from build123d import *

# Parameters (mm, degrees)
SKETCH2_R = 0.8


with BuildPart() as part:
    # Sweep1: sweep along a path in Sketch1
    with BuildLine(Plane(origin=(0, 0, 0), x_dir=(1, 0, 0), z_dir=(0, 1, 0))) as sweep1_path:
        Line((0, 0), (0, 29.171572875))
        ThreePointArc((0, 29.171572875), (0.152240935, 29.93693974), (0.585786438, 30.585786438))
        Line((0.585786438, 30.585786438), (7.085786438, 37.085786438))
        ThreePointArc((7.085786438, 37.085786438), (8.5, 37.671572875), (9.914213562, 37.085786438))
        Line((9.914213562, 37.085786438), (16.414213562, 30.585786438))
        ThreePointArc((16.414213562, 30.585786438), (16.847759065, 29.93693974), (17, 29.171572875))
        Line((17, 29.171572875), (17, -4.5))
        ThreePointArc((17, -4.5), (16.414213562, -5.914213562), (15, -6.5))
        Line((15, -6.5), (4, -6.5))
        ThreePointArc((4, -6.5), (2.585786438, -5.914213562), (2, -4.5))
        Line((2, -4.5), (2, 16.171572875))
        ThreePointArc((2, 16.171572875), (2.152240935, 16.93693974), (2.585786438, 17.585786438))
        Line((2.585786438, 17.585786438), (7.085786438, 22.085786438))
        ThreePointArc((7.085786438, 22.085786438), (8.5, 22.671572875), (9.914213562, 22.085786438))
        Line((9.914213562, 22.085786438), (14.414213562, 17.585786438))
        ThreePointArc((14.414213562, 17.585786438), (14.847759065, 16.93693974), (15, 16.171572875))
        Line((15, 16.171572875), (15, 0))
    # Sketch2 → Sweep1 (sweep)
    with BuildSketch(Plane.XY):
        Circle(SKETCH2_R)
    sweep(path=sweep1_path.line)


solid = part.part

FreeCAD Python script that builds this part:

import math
import FreeCAD as App
import Part
import Sketcher
from FreeCAD import Vector

doc = App.newDocument("Part")
body = doc.addObject("PartDesign::Body", "Body")

# Sketch on XY plane
sketch1 = body.newObject("Sketcher::SketchObject", "Sketch")
sketch1.AttachmentSupport = (doc.getObject("XY_Plane"), [""])
sketch1.MapMode = "FlatFace"
sketch1.addGeometry(Part.Circle(Vector(0, 0, 0), Vector(0, 0, 1), 0.8), False)
sketch1.addConstraint([
    Sketcher.Constraint("Coincident", 0, 3, -1, 1),
    Sketcher.Constraint("Diameter", 0, 1.6),
])

# Sketch on XZ plane
sketch2 = body.newObject("Sketcher::SketchObject", "Sketch001")
sketch2.AttachmentSupport = (doc.getObject("XZ_Plane"), [""])
sketch2.MapMode = "FlatFace"
sketch2.addGeometry([
    Part.LineSegment(Vector(0, 0, 0), Vector(0, -29.2, 0)),  # 0
    Part.ArcOfCircle(Part.Circle(Vector(2, -29.2, 0), Vector(0, 0, 1), 2), math.radians(180), math.radians(225)),  # 1
    Part.LineSegment(Vector(0.6, -30.6, 0), Vector(7.1, -37.1, 0)),  # 2
    Part.ArcOfCircle(Part.Circle(Vector(8.5, -35.7, 0), Vector(0, 0, 1), 2), math.radians(-135), math.radians(-45)),  # 3
    Part.LineSegment(Vector(9.9, -37.1, 0), Vector(16.4, -30.6, 0)),  # 4
    Part.ArcOfCircle(Part.Circle(Vector(15, -29.2, 0), Vector(0, 0, 1), 2), math.radians(-45), math.radians(0)),  # 5
    Part.LineSegment(Vector(17, -29.2, 0), Vector(17, 4.5, 0)),  # 6
    Part.ArcOfCircle(Part.Circle(Vector(15, 4.5, 0), Vector(0, 0, 1), 2), math.radians(0), math.radians(90)),  # 7
    Part.LineSegment(Vector(15, 6.5, 0), Vector(4, 6.5, 0)),  # 8
    Part.ArcOfCircle(Part.Circle(Vector(4, 4.5, 0), Vector(0, 0, 1), 2), math.radians(90), math.radians(180)),  # 9
    Part.LineSegment(Vector(2, 4.5, 0), Vector(2, -16.2, 0)),  # 10
    Part.ArcOfCircle(Part.Circle(Vector(4, -16.2, 0), Vector(0, 0, 1), 2), math.radians(180), math.radians(225)),  # 11
    Part.LineSegment(Vector(2.6, -17.6, 0), Vector(7.1, -22.1, 0)),  # 12
    Part.ArcOfCircle(Part.Circle(Vector(8.5, -20.7, 0), Vector(0, 0, 1), 2), math.radians(-135), math.radians(-45)),  # 13
    Part.LineSegment(Vector(9.9, -22.1, 0), Vector(14.4, -17.6, 0)),  # 14
    Part.ArcOfCircle(Part.Circle(Vector(13, -16.2, 0), Vector(0, 0, 1), 2), math.radians(-45), math.radians(0)),  # 15
    Part.LineSegment(Vector(15, -16.2, 0), Vector(15, 0, 0)),  # 16
], False)
sketch2.addConstraint([
    Sketcher.Constraint("Tangent", 0, 2, 1, 1),
    Sketcher.Constraint("Tangent", 1, 2, 2, 1),
    Sketcher.Constraint("Tangent", 2, 2, 3, 1),
    Sketcher.Constraint("Tangent", 3, 2, 4, 1),
    Sketcher.Constraint("Tangent", 4, 2, 5, 1),
    Sketcher.Constraint("Tangent", 5, 2, 6, 1),
    Sketcher.Constraint("Tangent", 6, 2, 7, 1),
    Sketcher.Constraint("Tangent", 7, 2, 8, 1),
    Sketcher.Constraint("Tangent", 8, 2, 9, 1),
    Sketcher.Constraint("Tangent", 9, 2, 10, 1),
    Sketcher.Constraint("Tangent", 10, 2, 11, 1),
    Sketcher.Constraint("Tangent", 11, 2, 12, 1),
    Sketcher.Constraint("Tangent", 12, 2, 13, 1),
    Sketcher.Constraint("Tangent", 13, 2, 14, 1),
    Sketcher.Constraint("Tangent", 14, 2, 15, 1),
    Sketcher.Constraint("Tangent", 15, 2, 16, 1),
    Sketcher.Constraint("Vertical", 0),
    Sketcher.Constraint("Vertical", 6),
    Sketcher.Constraint("Horizontal", 8),
    Sketcher.Constraint("Vertical", 10),
    Sketcher.Constraint("Vertical", 16),
    Sketcher.Constraint("Coincident", 0, 1, -1, 1),
    Sketcher.Constraint("Equal", 1, 3),
    Sketcher.Constraint("Equal", 3, 5),
    Sketcher.Constraint("Equal", 5, 7),
    Sketcher.Constraint("Equal", 7, 9),
    Sketcher.Constraint("Equal", 9, 11),
    Sketcher.Constraint("Equal", 11, 13),
    Sketcher.Constraint("Equal", 13, 15),
    Sketcher.Constraint("PointOnObject", 16, 2, -1),
    Sketcher.Constraint("Perpendicular", 2, 4),
    Sketcher.Constraint("Perpendicular", 4, 12),
    Sketcher.Constraint("Perpendicular", 12, 14),
    Sketcher.Constraint("Horizontal", 1, 3, 5, 3),
    Sketcher.Constraint("Horizontal", 11, 3, 15, 3),
    Sketcher.Constraint("Horizontal", 2, 2, 3, 2),
    Sketcher.Constraint("Vertical", 3, 3, 13, 3),
    Sketcher.Constraint("Vertical", 1, 3, 9, 2),
    Sketcher.Constraint("Radius", 1, 2.0),
    Sketcher.Constraint("DistanceX", 8, 2, 8, 1, 11.0),
    Sketcher.Constraint("DistanceY", 1, 3, 11, 3, 13.0),
    Sketcher.Constraint("DistanceY", -1, 1, 7, 3, 4.5),
    Sketcher.Constraint("DistanceY", 0, 2, 0, 1, 29.171573),
])
doc.recompute()

additivepipe = body.newObject("PartDesign::AdditivePipe", "AdditivePipe")
additivepipe.Profile = sketch1
additivepipe.Spine = (sketch2, ["Edge1", "Edge2", "Edge3", "Edge4", "Edge5", "Edge6", "Edge7", "Edge8", "Edge9", "Edge10", "Edge11", "Edge12", "Edge13", "Edge14", "Edge15", "Edge16", "Edge17"])

doc.recompute()
